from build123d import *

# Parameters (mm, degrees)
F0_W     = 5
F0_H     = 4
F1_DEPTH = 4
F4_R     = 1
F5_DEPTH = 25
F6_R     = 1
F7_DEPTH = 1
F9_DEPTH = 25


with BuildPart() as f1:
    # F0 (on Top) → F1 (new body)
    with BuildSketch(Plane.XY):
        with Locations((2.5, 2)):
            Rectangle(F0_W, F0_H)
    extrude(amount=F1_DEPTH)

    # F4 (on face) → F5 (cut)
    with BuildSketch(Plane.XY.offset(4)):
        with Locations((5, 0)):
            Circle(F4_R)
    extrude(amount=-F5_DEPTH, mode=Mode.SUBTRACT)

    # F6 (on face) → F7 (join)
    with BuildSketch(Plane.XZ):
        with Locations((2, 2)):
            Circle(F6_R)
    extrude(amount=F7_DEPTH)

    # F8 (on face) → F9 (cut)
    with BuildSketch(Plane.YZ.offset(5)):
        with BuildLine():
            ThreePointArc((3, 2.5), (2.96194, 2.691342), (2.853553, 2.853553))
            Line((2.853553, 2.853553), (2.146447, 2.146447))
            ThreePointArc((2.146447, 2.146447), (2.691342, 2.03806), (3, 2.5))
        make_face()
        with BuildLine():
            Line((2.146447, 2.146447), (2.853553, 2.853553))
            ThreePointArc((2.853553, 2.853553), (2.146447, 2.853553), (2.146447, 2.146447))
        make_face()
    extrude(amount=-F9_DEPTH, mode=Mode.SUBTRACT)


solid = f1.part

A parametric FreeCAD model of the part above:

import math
import FreeCAD as App
import Part
import Sketcher


def add_polygon(sketch, points):
    """Adds a closed chain of lines whose ends are joined by coincident constraints."""
    first, n = sketch.GeometryCount, len(points)
    for a, b in zip(points, points[1:] + points[:1]):
        sketch.addGeometry(Part.LineSegment(App.Vector(*a, 0), App.Vector(*b, 0)), False)
    for i in range(n):
        sketch.addConstraint(Sketcher.Constraint("Coincident", first + i, 2, first + (i + 1) % n, 1))

doc = App.newDocument("Part")
params = doc.addObject("Spreadsheet::Sheet", "Params")
for row, (alias, value) in enumerate([
    ("sketch1_width", "5 mm"),
    ("sketch1_height", "4 mm"),
    ("pad1_length", "4 mm"),
    ("sketch2_diameter", "2 mm"),
    ("pocket1_length", "25 mm"),
    ("sketch3_diameter", "2 mm"),
    ("pad2_length", "1 mm"),
    ("sketch4_radius", "0.499999 mm"),
    ("pocket2_length", "25 mm"),
], start=1):
    params.set(f"A{row}", alias)
    params.set(f"B{row}", "=" + value)
    params.setAlias(f"B{row}", alias)

body = doc.addObject("PartDesign::Body", "Body")

# Sketch on XY plane
sketch1 = doc.addObject("Sketcher::SketchObject", "Sketch")
body.addObject(sketch1)
sketch1.AttachmentSupport = (doc.XY_Plane, [""])
sketch1.MapMode = "FlatFace"
add_polygon(sketch1, [(0, 4), (0, 0), (5, 0), (5, 4)])  # lines 0-3
sketch1.addConstraint(Sketcher.Constraint("Vertical", 0))
sketch1.addConstraint(Sketcher.Constraint("Horizontal", 1))
sketch1.addConstraint(Sketcher.Constraint("Vertical", 2))
sketch1.addConstraint(Sketcher.Constraint("Horizontal", 3))
sketch1.addConstraint(Sketcher.Constraint("Coincident", 0, 2, -1, 1))
sketch1.addConstraint(Sketcher.Constraint("DistanceX", 1, 1, 1, 2, 5.0))
sketch1.addConstraint(Sketcher.Constraint("DistanceY", 0, 2, 0, 1, 4.0))
sketch1.setExpression("Constraints[9]", "Params.sketch1_width")
sketch1.setExpression("Constraints[10]", "Params.sketch1_height")
pad1 = doc.addObject("PartDesign::Pad", "Pad")
body.addObject(pad1)
pad1.Profile = sketch1
pad1.setExpression("Length", "Params.pad1_length")

# Sketch on XY plane
sketch2 = doc.addObject("Sketcher::SketchObject", "Sketch001")
body.addObject(sketch2)
sketch2.AttachmentSupport = (doc.XY_Plane, [""])
sketch2.MapMode = "FlatFace"
sketch2.AttachmentOffset = App.Placement(App.Vector(0, 0, 4), App.Rotation())
sketch2.addGeometry(Part.Circle(App.Vector(5, 0, 0), App.Vector(0, 0, 1), 1), False)
sketch2.addConstraint(Sketcher.Constraint("PointOnObject", 0, 3, -1))
sketch2.addConstraint(Sketcher.Constraint("Diameter", 0, 2.0))
sketch2.addConstraint(Sketcher.Constraint("DistanceX", -1, 1, 0, 3, 5.0))
sketch2.setExpression("Constraints[1]", "Params.sketch2_diameter")
pocket1 = doc.addObject("PartDesign::Pocket", "Pocket")
body.addObject(pocket1)
pocket1.Profile = sketch2
pocket1.setExpression("Length", "Params.pocket1_length")

# Sketch on XZ plane
sketch3 = doc.addObject("Sketcher::SketchObject", "Sketch002")
body.addObject(sketch3)
sketch3.AttachmentSupport = (doc.XZ_Plane, [""])
sketch3.MapMode = "FlatFace"
sketch3.addGeometry(Part.Circle(App.Vector(2, 2, 0), App.Vector(0, 0, 1), 1), False)
sketch3.addConstraint(Sketcher.Constraint("Diameter", 0, 2.0))
sketch3.addConstraint(Sketcher.Constraint("DistanceX", -1, 1, 0, 3, 2.0))
sketch3.addConstraint(Sketcher.Constraint("DistanceY", -1, 1, 0, 3, 2.0))
sketch3.setExpression("Constraints[0]", "Params.sketch3_diameter")
pad2 = doc.addObject("PartDesign::Pad", "Pad001")
body.addObject(pad2)
pad2.Profile = sketch3
pad2.setExpression("Length", "Params.pad2_length")

# Sketch on YZ plane
sketch4 = doc.addObject("Sketcher::SketchObject", "Sketch003")
body.addObject(sketch4)
sketch4.AttachmentSupport = (doc.YZ_Plane, [""])
sketch4.MapMode = "FlatFace"
sketch4.AttachmentOffset = App.Placement(App.Vector(0, 0, 5), App.Rotation())
sketch4.addGeometry(Part.ArcOfCircle(Part.Circle(App.Vector(2.5, 2.5, 0), App.Vector(0, 0, 1), 0.5), math.radians(0), math.radians(45)), False)
sketch4.addGeometry(Part.ArcOfCircle(Part.Circle(App.Vector(2.5, 2.5, 0), App.Vector(0, 0, 1), 0.5), math.radians(45), math.radians(225)), False)
sketch4.addGeometry(Part.ArcOfCircle(Part.Circle(App.Vector(2.5, 2.5, 0), App.Vector(0, 0, 1), 0.5), math.radians(-135), math.radians(0)), False)
sketch4.addConstraint(Sketcher.Constraint("Coincident", 0, 2, 1, 1))
sketch4.addConstraint(Sketcher.Constraint("Coincident", 1, 2, 2, 1))
sketch4.addConstraint(Sketcher.Constraint("Coincident", 2, 2, 0, 1))
sketch4.addConstraint(Sketcher.Constraint("Coincident", 1, 3, 0, 3))
sketch4.addConstraint(Sketcher.Constraint("Equal", 1, 2))
sketch4.addConstraint(Sketcher.Constraint("Horizontal", 1, 3, 2, 2))
sketch4.addConstraint(Sketcher.Constraint("Radius", 1, 0.499999))
sketch4.addConstraint(Sketcher.Constraint("DistanceX", -1, 1, 2, 2, 3.0))
sketch4.addConstraint(Sketcher.Constraint("DistanceY", -1, 1, 1, 3, 2.5))
sketch4.addConstraint(Sketcher.Constraint("DistanceY", 0, 3, 0, 2, 0.353551))
sketch4.addConstraint(Sketcher.Constraint("DistanceX", 1, 2, 0, 3, 0.353561))
sketch4.setExpression("Constraints[6]", "Params.sketch4_radius")
pocket2 = doc.addObject("PartDesign::Pocket", "Pocket001")
body.addObject(pocket2)
pocket2.Profile = sketch4
pocket2.setExpression("Length", "Params.pocket2_length")

doc.recompute()
